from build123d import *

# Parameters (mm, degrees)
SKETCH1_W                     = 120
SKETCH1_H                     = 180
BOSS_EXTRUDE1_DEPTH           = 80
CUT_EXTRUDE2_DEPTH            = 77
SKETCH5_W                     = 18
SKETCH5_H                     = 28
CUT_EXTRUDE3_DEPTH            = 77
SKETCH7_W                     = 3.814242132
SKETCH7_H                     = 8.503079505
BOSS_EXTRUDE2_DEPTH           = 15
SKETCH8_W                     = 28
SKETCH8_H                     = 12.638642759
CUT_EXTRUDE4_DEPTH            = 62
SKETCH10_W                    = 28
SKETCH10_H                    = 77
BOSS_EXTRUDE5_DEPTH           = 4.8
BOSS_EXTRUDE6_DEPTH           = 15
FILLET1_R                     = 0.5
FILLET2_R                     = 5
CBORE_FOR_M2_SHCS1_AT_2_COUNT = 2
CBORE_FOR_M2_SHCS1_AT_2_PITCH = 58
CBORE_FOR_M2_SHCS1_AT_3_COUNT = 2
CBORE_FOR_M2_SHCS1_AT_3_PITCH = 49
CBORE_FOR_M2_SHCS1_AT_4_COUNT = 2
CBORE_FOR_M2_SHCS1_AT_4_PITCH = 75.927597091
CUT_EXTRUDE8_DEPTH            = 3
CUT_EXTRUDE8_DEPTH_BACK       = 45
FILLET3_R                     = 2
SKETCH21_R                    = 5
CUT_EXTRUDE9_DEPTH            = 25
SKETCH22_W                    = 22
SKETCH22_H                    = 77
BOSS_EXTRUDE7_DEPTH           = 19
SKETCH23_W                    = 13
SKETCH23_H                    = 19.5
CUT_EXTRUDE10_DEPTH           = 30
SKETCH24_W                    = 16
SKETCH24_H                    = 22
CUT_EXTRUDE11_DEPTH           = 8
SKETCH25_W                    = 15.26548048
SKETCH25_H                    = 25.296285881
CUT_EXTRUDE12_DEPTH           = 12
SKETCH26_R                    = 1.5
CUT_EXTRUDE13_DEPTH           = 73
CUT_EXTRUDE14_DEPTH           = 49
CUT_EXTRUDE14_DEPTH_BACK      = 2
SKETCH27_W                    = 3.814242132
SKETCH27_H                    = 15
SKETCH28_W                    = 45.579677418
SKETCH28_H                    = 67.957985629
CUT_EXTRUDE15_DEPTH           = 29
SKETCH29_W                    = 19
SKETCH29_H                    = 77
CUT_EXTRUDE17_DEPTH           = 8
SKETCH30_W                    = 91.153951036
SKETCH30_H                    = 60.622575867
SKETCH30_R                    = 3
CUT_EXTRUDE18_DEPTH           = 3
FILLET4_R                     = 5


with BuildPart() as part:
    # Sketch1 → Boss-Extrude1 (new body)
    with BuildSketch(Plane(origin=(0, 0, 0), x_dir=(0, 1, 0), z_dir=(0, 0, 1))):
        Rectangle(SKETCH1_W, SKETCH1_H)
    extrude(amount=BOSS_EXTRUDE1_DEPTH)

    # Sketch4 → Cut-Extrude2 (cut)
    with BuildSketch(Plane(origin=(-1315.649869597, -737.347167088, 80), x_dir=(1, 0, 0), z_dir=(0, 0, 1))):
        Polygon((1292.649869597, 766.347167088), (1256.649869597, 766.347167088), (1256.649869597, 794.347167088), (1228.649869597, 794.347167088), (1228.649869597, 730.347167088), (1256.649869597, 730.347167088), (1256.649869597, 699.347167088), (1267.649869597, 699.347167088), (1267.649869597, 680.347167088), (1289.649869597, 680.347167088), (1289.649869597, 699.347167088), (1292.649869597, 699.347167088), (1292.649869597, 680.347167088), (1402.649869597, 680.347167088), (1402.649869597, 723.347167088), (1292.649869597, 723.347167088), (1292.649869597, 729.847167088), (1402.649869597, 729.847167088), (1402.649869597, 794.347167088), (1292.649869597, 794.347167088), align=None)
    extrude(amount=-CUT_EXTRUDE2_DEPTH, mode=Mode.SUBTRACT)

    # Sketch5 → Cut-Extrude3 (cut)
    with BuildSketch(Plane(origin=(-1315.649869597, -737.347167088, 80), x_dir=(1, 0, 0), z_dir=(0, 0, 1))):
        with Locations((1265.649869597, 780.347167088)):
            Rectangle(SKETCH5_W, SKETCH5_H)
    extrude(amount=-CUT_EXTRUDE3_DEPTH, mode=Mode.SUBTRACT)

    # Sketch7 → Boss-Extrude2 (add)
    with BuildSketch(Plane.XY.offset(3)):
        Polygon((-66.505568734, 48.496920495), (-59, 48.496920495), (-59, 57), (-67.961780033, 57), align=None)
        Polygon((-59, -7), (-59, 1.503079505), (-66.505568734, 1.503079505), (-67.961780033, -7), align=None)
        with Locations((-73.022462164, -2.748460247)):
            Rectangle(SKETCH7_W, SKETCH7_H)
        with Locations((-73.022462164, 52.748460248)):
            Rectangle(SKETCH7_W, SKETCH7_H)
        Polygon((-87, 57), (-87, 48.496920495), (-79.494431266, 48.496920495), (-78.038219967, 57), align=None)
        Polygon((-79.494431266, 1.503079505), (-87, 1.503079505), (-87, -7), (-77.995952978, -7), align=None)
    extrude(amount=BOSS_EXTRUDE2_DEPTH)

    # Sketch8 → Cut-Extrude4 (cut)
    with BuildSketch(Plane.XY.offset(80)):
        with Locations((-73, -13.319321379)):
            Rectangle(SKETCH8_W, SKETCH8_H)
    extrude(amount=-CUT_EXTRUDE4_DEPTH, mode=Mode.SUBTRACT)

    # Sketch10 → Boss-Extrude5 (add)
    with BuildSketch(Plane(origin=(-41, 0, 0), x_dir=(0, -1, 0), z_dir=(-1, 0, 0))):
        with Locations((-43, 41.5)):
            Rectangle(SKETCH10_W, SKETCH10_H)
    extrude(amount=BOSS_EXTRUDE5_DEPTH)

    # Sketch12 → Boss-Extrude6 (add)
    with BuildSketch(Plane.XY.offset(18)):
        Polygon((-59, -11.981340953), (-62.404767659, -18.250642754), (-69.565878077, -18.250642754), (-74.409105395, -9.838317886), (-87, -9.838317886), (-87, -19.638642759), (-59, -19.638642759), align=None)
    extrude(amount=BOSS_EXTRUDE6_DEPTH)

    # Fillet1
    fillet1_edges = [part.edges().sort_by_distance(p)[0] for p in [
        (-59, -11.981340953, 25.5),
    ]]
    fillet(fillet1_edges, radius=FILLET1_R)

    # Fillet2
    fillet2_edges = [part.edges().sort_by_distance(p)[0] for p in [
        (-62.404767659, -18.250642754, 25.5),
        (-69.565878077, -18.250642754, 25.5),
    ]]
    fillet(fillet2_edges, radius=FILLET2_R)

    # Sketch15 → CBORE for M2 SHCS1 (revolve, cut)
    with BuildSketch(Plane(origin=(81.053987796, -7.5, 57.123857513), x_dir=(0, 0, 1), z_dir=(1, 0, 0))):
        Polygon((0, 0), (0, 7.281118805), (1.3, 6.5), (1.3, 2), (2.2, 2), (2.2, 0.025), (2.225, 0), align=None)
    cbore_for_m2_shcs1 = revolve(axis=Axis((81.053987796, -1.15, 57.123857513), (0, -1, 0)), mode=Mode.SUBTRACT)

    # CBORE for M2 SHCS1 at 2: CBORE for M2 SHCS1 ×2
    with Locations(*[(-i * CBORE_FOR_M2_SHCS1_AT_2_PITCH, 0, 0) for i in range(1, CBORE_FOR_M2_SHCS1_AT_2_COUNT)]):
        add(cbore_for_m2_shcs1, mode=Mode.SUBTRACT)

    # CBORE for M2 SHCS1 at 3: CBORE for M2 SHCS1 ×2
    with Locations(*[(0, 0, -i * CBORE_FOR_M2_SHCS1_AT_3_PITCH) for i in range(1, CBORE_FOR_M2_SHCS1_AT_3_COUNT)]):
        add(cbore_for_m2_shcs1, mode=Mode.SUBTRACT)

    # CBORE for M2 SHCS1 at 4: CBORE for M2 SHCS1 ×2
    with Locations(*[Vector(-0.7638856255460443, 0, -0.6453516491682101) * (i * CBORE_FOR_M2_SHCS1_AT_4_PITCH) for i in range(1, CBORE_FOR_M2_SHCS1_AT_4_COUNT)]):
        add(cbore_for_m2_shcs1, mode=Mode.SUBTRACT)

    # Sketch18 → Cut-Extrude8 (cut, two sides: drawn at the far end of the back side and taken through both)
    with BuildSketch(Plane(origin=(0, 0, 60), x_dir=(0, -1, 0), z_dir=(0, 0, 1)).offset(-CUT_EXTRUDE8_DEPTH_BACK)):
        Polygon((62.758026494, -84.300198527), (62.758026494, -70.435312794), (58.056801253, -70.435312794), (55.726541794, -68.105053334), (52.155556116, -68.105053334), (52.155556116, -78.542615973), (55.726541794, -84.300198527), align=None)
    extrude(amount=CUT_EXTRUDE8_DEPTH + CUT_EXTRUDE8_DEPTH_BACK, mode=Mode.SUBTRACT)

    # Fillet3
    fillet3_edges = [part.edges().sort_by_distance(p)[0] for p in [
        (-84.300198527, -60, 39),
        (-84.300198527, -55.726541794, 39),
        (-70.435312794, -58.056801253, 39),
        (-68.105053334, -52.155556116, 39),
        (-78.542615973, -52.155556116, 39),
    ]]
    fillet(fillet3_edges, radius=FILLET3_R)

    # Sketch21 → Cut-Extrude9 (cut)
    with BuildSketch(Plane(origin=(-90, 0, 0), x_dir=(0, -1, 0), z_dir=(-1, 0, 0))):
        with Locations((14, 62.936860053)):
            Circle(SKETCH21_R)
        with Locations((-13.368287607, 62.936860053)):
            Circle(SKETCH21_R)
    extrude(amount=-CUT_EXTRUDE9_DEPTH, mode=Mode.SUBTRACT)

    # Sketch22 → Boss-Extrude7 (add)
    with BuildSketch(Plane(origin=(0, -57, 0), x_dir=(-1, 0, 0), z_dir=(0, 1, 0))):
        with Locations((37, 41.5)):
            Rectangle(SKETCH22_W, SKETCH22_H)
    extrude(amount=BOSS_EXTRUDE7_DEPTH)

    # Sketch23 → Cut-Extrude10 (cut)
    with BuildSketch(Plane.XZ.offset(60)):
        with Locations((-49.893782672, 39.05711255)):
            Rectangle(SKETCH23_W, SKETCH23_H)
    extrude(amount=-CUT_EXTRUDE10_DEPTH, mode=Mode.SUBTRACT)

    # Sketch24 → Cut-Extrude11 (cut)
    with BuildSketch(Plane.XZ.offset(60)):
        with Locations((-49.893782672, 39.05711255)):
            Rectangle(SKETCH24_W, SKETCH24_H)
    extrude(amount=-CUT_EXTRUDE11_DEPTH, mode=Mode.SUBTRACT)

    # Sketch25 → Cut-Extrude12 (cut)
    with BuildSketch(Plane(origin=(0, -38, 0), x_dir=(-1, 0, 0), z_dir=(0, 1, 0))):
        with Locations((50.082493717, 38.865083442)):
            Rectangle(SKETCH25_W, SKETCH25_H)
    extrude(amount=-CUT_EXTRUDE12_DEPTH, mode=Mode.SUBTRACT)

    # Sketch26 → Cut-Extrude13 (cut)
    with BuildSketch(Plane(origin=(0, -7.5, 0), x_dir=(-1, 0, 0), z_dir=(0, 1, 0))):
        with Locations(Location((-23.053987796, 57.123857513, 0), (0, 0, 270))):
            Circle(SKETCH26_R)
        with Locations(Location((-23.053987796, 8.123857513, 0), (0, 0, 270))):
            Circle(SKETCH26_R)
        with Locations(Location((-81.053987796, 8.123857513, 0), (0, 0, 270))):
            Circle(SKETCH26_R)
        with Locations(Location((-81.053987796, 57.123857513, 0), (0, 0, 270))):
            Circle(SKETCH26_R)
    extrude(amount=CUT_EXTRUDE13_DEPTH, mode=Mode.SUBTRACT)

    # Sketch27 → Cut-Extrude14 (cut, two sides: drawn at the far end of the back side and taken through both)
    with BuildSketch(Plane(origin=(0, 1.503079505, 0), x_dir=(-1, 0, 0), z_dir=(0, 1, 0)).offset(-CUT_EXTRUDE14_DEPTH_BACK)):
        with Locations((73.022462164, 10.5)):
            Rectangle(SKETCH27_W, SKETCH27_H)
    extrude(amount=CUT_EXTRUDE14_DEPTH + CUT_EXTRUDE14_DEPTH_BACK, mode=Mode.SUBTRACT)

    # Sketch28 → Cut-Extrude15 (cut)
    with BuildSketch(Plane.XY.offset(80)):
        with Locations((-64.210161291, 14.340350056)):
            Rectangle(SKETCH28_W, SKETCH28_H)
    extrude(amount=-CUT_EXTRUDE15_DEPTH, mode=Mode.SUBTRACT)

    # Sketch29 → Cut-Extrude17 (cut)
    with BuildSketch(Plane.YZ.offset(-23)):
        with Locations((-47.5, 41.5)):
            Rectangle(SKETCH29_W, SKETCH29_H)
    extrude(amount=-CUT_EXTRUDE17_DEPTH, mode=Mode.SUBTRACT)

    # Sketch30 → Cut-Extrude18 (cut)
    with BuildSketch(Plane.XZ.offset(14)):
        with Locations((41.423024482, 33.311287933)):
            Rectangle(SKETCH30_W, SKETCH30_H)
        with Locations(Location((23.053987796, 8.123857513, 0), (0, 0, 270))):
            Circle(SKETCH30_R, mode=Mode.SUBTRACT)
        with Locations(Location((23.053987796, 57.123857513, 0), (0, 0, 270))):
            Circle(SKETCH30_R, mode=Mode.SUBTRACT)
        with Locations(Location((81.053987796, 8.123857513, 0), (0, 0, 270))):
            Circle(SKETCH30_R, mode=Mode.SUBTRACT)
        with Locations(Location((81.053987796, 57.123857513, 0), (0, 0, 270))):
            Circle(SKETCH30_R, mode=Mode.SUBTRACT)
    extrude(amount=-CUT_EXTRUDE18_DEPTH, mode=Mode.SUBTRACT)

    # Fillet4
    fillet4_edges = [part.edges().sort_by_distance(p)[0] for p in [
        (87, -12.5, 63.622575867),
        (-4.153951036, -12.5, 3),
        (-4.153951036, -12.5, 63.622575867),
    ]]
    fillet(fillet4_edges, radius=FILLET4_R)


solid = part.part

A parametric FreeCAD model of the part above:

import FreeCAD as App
import Part
import Sketcher

V = App.Vector
Q = App.Units.Quantity


def edges_at(feature, points):
    """Names of the edges that pass closest to the given points."""
    edges = feature.Shape.Edges
    near = lambda p: min(range(len(edges)), key=lambda i: edges[i].distToShape(Part.Vertex(*p))[0])
    return sorted({f"Edge{near(p) + 1}" for p in points})


def add_polygon(sketch, points):
    """Adds a closed chain of lines whose ends are joined by coincident constraints."""
    first, n = sketch.GeometryCount, len(points)
    for a, b in zip(points, points[1:] + points[:1]):
        sketch.addGeometry(Part.LineSegment(App.Vector(*a, 0), App.Vector(*b, 0)), False)
    for i in range(n):
        sketch.addConstraint(Sketcher.Constraint("Coincident", first + i, 2, first + (i + 1) % n, 1))

doc = App.newDocument("Part")
body = doc.addObject("PartDesign::Body", "Body")

# Sketch on XY plane
sketch1 = body.newObject("Sketcher::SketchObject", "Sketch")
sketch1.AttachmentSupport = (doc.getObject("XY_Plane"), [""])
sketch1.MapMode = "FlatFace"
add_polygon(sketch1, [(-90, -60), (90, -60), (90, 60), (-90, 60)])  # lines 0-3
sketch1.addConstraint([
    Sketcher.Constraint("Horizontal", 0),
    Sketcher.Constraint("Vertical", 1),
    Sketcher.Constraint("Horizontal", 2),
    Sketcher.Constraint("Vertical", 3),
    Sketcher.Constraint("Symmetric", 0, 2, 2, 2, -1, 1),
    Sketcher.Constraint("DistanceX", 0, 1, 0, 2, Q("180 mm")),
    Sketcher.Constraint("DistanceY", 1, 1, 1, 2, Q("120 mm")),
])
pad1 = body.newObject("PartDesign::Pad", "Pad")
pad1.Profile = sketch1
pad1.Length = 80

# Sketch on XY plane
sketch2 = body.newObject("Sketcher::SketchObject", "Sketch001")
sketch2.AttachmentSupport = (doc.getObject("XY_Plane"), [""])
sketch2.MapMode = "FlatFace"
sketch2.AttachmentOffset = App.Placement(V(0, 0, 80), App.Rotation())
add_polygon(sketch2, [(-23, 29), (-59, 29), (-59, 57), (-87, 57), (-87, -7), (-59, -7), (-59, -38), (-48, -38), (-48, -57), (-26, -57), (-26, -38), (-23, -38), (-23, -57), (87, -57), (87, -14), (-23, -14), (-23, -7.5), (87, -7.5), (87, 57), (-23, 57)])  # lines 0-19
sketch2.addConstraint([
    Sketcher.Constraint("Horizontal", 0),
    Sketcher.Constraint("Vertical", 1),
    Sketcher.Constraint("Horizontal", 2),
    Sketcher.Constraint("Vertical", 3),
    Sketcher.Constraint("Horizontal", 4),
    Sketcher.Constraint("Vertical", 5),
    Sketcher.Constraint("Horizontal", 6),
    Sketcher.Constraint("Vertical", 7),
    Sketcher.Constraint("Horizontal", 8),
    Sketcher.Constraint("Vertical", 9),
    Sketcher.Constraint("Horizontal", 10),
    Sketcher.Constraint("Vertical", 11),
    Sketcher.Constraint("Horizontal", 12),
    Sketcher.Constraint("Vertical", 13),
    Sketcher.Constraint("Horizontal", 14),
    Sketcher.Constraint("Vertical", 15),
    Sketcher.Constraint("Horizontal", 16),
    Sketcher.Constraint("Vertical", 17),
    Sketcher.Constraint("Horizontal", 18),
    Sketcher.Constraint("Vertical", 19),
    Sketcher.Constraint("Symmetric", 2, 2, 12, 2, -1, 1),
    Sketcher.Constraint("Symmetric", 2, 2, 17, 2, -2),
    Sketcher.Constraint("Horizontal", 6, 2, 9, 2),
    Sketcher.Constraint("Horizontal", 8, 2, 11, 2),
    Sketcher.Constraint("Vertical", 1, 2, 4, 2),
    Sketcher.Constraint("Vertical", 11, 2, 14, 2),
    Sketcher.Constraint("Vertical", 15, 2, 18, 2),
    Sketcher.Constraint("Equal", 4, 1),
    Sketcher.Constraint("DistanceX", 0, 2, 0, 1, Q("36 mm")),
    Sketcher.Constraint("DistanceX", 2, 2, 2, 1, Q("28 mm")),
    Sketcher.Constraint("DistanceX", 6, 1, 6, 2, Q("11 mm")),
    Sketcher.Constraint("DistanceX", 8, 1, 8, 2, Q("22 mm")),
    Sketcher.Constraint("DistanceX", 12, 1, 12, 2, Q("110 mm")),
    Sketcher.Constraint("DistanceY", 3, 2, 3, 1, Q("64 mm")),
    Sketcher.Constraint("DistanceY", 5, 2, 5, 1, Q("31 mm")),
    Sketcher.Constraint("DistanceY", 7, 2, 7, 1, Q("19 mm")),
    Sketcher.Constraint("DistanceY", 13, 1, 13, 2, Q("43 mm")),
    Sketcher.Constraint("DistanceY", 15, 1, 15, 2, Q("6.5 mm")),
])
pocket1 = body.newObject("PartDesign::Pocket", "Pocket")
pocket1.Profile = sketch2
pocket1.Length = 77

# Sketch on XY plane
sketch3 = body.newObject("Sketcher::SketchObject", "Sketch002")
sketch3.AttachmentSupport = (doc.getObject("XY_Plane"), [""])
sketch3.MapMode = "FlatFace"
sketch3.AttachmentOffset = App.Placement(V(0, 0, 80), App.Rotation())
add_polygon(sketch3, [(-59, 57), (-59, 29), (-41, 29), (-41, 57)])  # lines 0-3
sketch3.addConstraint([
    Sketcher.Constraint("Vertical", 0),
    Sketcher.Constraint("Horizontal", 1),
    Sketcher.Constraint("Vertical", 2),
    Sketcher.Constraint("Horizontal", 3),
    Sketcher.Constraint("DistanceX", 1, 1, 1, 2, Q("18 mm")),
    Sketcher.Constraint("DistanceY", 0, 2, 0, 1, Q("28 mm")),
    Sketcher.Constraint("DistanceX", 0, 2, -1, 1, Q("59 mm")),
    Sketcher.Constraint("DistanceY", -1, 1, 0, 2, Q("29 mm")),
])
pocket2 = body.newObject("PartDesign::Pocket", "Pocket001")
pocket2.Profile = sketch3
pocket2.Length = 77

# Sketch on XY plane
sketch4 = body.newObject("Sketcher::SketchObject", "Sketch003")
sketch4.AttachmentSupport = (doc.getObject("XY_Plane"), [""])
sketch4.MapMode = "FlatFace"
sketch4.AttachmentOffset = App.Placement(V(0, 0, 3), App.Rotation())
add_polygon(sketch4, [(-66.5, 48.5), (-59, 48.5), (-59, 57), (-68, 57)])  # lines 0-3
add_polygon(sketch4, [(-59, -7), (-59, 1.5), (-66.5, 1.5), (-68, -7)])  # lines 4-7
add_polygon(sketch4, [(-74.9, 1.5), (-74.9, -7), (-71.1, -7), (-71.1, 1.5)])  # lines 8-11
add_polygon(sketch4, [(-74.9, 57), (-74.9, 48.5), (-71.1, 48.5), (-71.1, 57)])  # lines 12-15
add_polygon(sketch4, [(-87, 57), (-87, 48.5), (-79.5, 48.5), (-78, 57)])  # lines 16-19
add_polygon(sketch4, [(-79.5, 1.5), (-87, 1.5), (-87, -7), (-78, -7)])  # lines 20-23
sketch4.addConstraint([
    Sketcher.Constraint("Horizontal", 0),
    Sketcher.Constraint("Vertical", 1),
    Sketcher.Constraint("Horizontal", 2),
    Sketcher.Constraint("Vertical", 4),
    Sketcher.Constraint("Horizontal", 5),
    Sketcher.Constraint("Horizontal", 7),
    Sketcher.Constraint("Vertical", 8),
    Sketcher.Constraint("Horizontal", 9),
    Sketcher.Constraint("Vertical", 10),
    Sketcher.Constraint("Horizontal", 11),
    Sketcher.Constraint("Vertical", 12),
    Sketcher.Constraint("Horizontal", 13),
    Sketcher.Constraint("Vertical", 14),
    Sketcher.Constraint("Horizontal", 15),
    Sketcher.Constraint("Vertical", 16),
    Sketcher.Constraint("Horizontal", 17),
    Sketcher.Constraint("Horizontal", 19),
    Sketcher.Constraint("Horizontal", 20),
    Sketcher.Constraint("Vertical", 21),
    Sketcher.Constraint("Horizontal", 22),
    Sketcher.Constraint("Parallel", 6, 18),
    Sketcher.Constraint("Horizontal", 7, 2, 8, 2),
    Sketcher.Constraint("Horizontal", 5, 2, 10, 2),
    Sketcher.Constraint("Horizontal", 3, 2, 12, 2),
    Sketcher.Constraint("Horizontal", 2, 2, 14, 2),
    Sketcher.Constraint("Horizontal", 13, 2, 16, 2),
    Sketcher.Constraint("Horizontal", 15, 2, 18, 2),
    Sketcher.Constraint("Horizontal", 11, 2, 20, 2),
    Sketcher.Constraint("Horizontal", 9, 2, 21, 2),
    Sketcher.Constraint("Vertical", 1, 2, 4, 2),
    Sketcher.Constraint("Vertical", 3, 2, 5, 2),
    Sketcher.Constraint("Vertical", 2, 2, 6, 2),
    Sketcher.Constraint("Vertical", 11, 2, 12, 2),
    Sketcher.Constraint("Vertical", 10, 2, 13, 2),
    Sketcher.Constraint("Vertical", 19, 2, 20, 2),
    Sketcher.Constraint("Vertical", 17, 2, 23, 2),
    Sketcher.Constraint("Equal", 5, 17),
    Sketcher.Constraint("Equal", 7, 19),
    Sketcher.Constraint("DistanceX", 0, 2, -1, 1, Q("59 mm")),
    Sketcher.Constraint("DistanceY", -1, 1, 1, 2, Q("57 mm")),
    Sketcher.Constraint("DistanceY", 6, 2, -1, 1, Q("7 mm")),
    Sketcher.Constraint("DistanceX", 16, 2, -1, 1, Q("87 mm")),
    Sketcher.Constraint("DistanceX", 0, 1, 0, 2, Q("7.505569 mm")),
    Sketcher.Constraint("DistanceX", 2, 2, 2, 1, Q("8.96178 mm")),
    Sketcher.Constraint("DistanceY", 1, 1, 1, 2, Q("8.50308 mm")),
    Sketcher.Constraint("DistanceX", 9, 1, 9, 2, Q("3.814242 mm")),
    Sketcher.Constraint("DistanceX", 22, 1, 22, 2, Q("9.004047 mm")),
    Sketcher.Constraint("DistanceX", 9, 2, -1, 1, Q("71.115341 mm")),
])
pad2 = body.newObject("PartDesign::Pad", "Pad001")
pad2.Profile = sketch4
pad2.Length = 15

# Sketch on XY plane
sketch5 = body.newObject("Sketcher::SketchObject", "Sketch004")
sketch5.AttachmentSupport = (doc.getObject("XY_Plane"), [""])
sketch5.MapMode = "FlatFace"
sketch5.AttachmentOffset = App.Placement(V(0, 0, 80), App.Rotation())
add_polygon(sketch5, [(-87, -7), (-87, -20), (-59, -20), (-59, -7)])  # lines 0-3
sketch5.addConstraint([
    Sketcher.Constraint("Vertical", 0),
    Sketcher.Constraint("Horizontal", 1),
    Sketcher.Constraint("Vertical", 2),
    Sketcher.Constraint("Horizontal", 3),
    Sketcher.Constraint("DistanceX", 1, 1, 1, 2, Q("28 mm")),
    Sketcher.Constraint("DistanceX", 0, 2, -1, 1, Q("87 mm")),
    Sketcher.Constraint("DistanceY", 2, 2, -1, 1, Q("7 mm")),
    Sketcher.Constraint("DistanceY", 0, 2, 0, 1, Q("12.638643 mm")),
])
pocket3 = body.newObject("PartDesign::Pocket", "Pocket002")
pocket3.Profile = sketch5
pocket3.Length = 62

# Sketch on YZ plane
sketch6 = body.newObject("Sketcher::SketchObject", "Sketch005")
sketch6.AttachmentSupport = (doc.getObject("YZ_Plane"), [""])
sketch6.MapMode = "FlatFace"
sketch6.AttachmentOffset = App.Placement(V(0, 0, -41), App.Rotation())
add_polygon(sketch6, [(57, 80), (57, 3), (29, 3), (29, 80)])  # lines 0-3
sketch6.addConstraint([
    Sketcher.Constraint("Vertical", 0),
    Sketcher.Constraint("Horizontal", 1),
    Sketcher.Constraint("Vertical", 2),
    Sketcher.Constraint("Horizontal", 3),
    Sketcher.Constraint("DistanceX", 1, 2, 1, 1, Q("28 mm")),
    Sketcher.Constraint("DistanceY", 0, 2, 0, 1, Q("77 mm")),
    Sketcher.Constraint("DistanceX", -1, 1, 0, 2, Q("57 mm")),
    Sketcher.Constraint("DistanceY", -1, 1, 0, 2, Q("3 mm")),
])
pad3 = body.newObject("PartDesign::Pad", "Pad002")
pad3.Profile = sketch6
pad3.Length = 4.8
pad3.Reversed = True

# Sketch on XY plane
sketch7 = body.newObject("Sketcher::SketchObject", "Sketch006")
sketch7.AttachmentSupport = (doc.getObject("XY_Plane"), [""])
sketch7.MapMode = "FlatFace"
sketch7.AttachmentOffset = App.Placement(V(0, 0, 18), App.Rotation())
add_polygon(sketch7, [(-59, -12), (-62, -18), (-70, -18), (-74, -10), (-87, -10), (-87, -20), (-59, -20)])  # lines 0-6
sketch7.addConstraint([
    Sketcher.Constraint("Horizontal", 1),
    Sketcher.Constraint("Horizontal", 3),
    Sketcher.Constraint("Vertical", 4),
    Sketcher.Constraint("Horizontal", 5),
    Sketcher.Constraint("Vertical", 6),
    Sketcher.Constraint("DistanceX", 5, 1, 5, 2, Q("28 mm")),
    Sketcher.Constraint("DistanceX", 3, 2, -1, 1, Q("87 mm")),
    Sketcher.Constraint("DistanceY", 6, 1, 6, 2, Q("7.657302 mm")),
    Sketcher.Constraint("DistanceY", 4, 2, 1, 2, Q("1.388 mm")),
    Sketcher.Constraint("DistanceX", 1, 2, 1, 1, Q("7.16111 mm")),
    Sketcher.Constraint("DistanceX", 3, 2, 3, 1, Q("12.590895 mm")),
    Sketcher.Constraint("DistanceY", 4, 2, 4, 1, Q("9.800325 mm")),
    Sketcher.Constraint("DistanceX", 1, 2, -1, 1, Q("69.565878 mm")),
    Sketcher.Constraint("DistanceY", 6, 2, -1, 1, Q("11.981341 mm")),
])
pad4 = body.newObject("PartDesign::Pad", "Pad003")
pad4.Profile = sketch7
pad4.Length = 15
doc.recompute()

fillet = body.newObject("PartDesign::Fillet", "Fillet")
fillet.Base = (pad4, edges_at(pad4, [(-59, -11.981, 25.5)]))
fillet.Radius = 0.5
doc.recompute()

fillet2 = body.newObject("PartDesign::Fillet", "Fillet001")
fillet2.Base = (fillet, edges_at(fillet, [(-62.405, -18.251, 25.5), (-69.566, -18.251, 25.5)]))
fillet2.Radius = 5

# Sketch on YZ plane
sketch8 = body.newObject("Sketcher::SketchObject", "Sketch007")
sketch8.AttachmentSupport = (doc.getObject("YZ_Plane"), [""])
sketch8.MapMode = "FlatFace"
sketch8.AttachmentOffset = App.Placement(V(0, 0, 81.053988), App.Rotation())
add_polygon(sketch8, [(-14.781, 57.124), (-7.5, 57.124), (-7.5, 59.349), (-7.525, 59.324), (-9.5, 59.324), (-9.5, 58.424), (-14, 58.424)])  # lines 0-6
sketch8.addGeometry(Part.LineSegment(V(-7.5, 57.124, 0), V(-14.781, 57.124, 0)), True)  # axis
sketch8.addConstraint([
    Sketcher.Constraint("Horizontal", 0),
    Sketcher.Constraint("Vertical", 1),
    Sketcher.Constraint("Horizontal", 3),
    Sketcher.Constraint("Vertical", 4),
    Sketcher.Constraint("Horizontal", 5),
    Sketcher.Constraint("Horizontal", 7),
    Sketcher.Constraint("Coincident", 7, 1, 0, 2),
    Sketcher.Constraint("Equal", 0, 7),
    Sketcher.Constraint("Angle", 2, Q("-135 deg")),
    Sketcher.Constraint("Angle", 6, Q("-121 deg")),
    Sketcher.Constraint("DistanceX", 5, 2, 5, 1, Q("4.5 mm")),
    Sketcher.Constraint("DistanceY", 4, 2, 4, 1, Q("0.9 mm")),
    Sketcher.Constraint("DistanceX", 5, 2, -1, 1, Q("14 mm")),
    Sketcher.Constraint("DistanceX", 3, 2, 1, 2, Q("2 mm")),
    Sketcher.Constraint("DistanceY", 0, 2, 2, 2, Q("2.2 mm")),
    Sketcher.Constraint("DistanceX", 3, 2, 3, 1, Q("1.975 mm")),
    Sketcher.Constraint("DistanceY", -1, 1, 0, 2, Q("57.123858 mm")),
])
groove = body.newObject("PartDesign::Groove", "Groove")
groove.Profile = sketch8
groove.ReferenceAxis = (sketch8, ["Axis0"])
groove.Angle = 360
doc.recompute()

linearpattern = body.newObject("PartDesign::LinearPattern", "LinearPattern")
linearpattern.Originals = [groove]
linearpattern.Direction = (doc.getObject("X_Axis"), [""])
linearpattern.Mode = "offset"
linearpattern.Offset = 58
linearpattern.Occurrences = 2
linearpattern.Reversed = True
body.Tip = linearpattern
doc.recompute()

linearpattern2 = body.newObject("PartDesign::LinearPattern", "LinearPattern001")
linearpattern2.Originals = [groove]
linearpattern2.Direction = (doc.getObject("Z_Axis"), [""])
linearpattern2.Mode = "offset"
linearpattern2.Offset = 49
linearpattern2.Occurrences = 2
linearpattern2.Reversed = True
body.Tip = linearpattern2
doc.recompute()

datumline = body.newObject("PartDesign::Line", "DatumLine")
datumline.Placement = App.Placement(V(0, 0, 0), App.Rotation(V(0, 0, 1), V(-0.763885626, 0, -0.645351649)))
linearpattern3 = body.newObject("PartDesign::LinearPattern", "LinearPattern002")
linearpattern3.Originals = [groove]
linearpattern3.Direction = (datumline, [""])
linearpattern3.Mode = "offset"
linearpattern3.Offset = 75.927597
linearpattern3.Occurrences = 2
body.Tip = linearpattern3

# Sketch on XY plane
sketch9 = body.newObject("Sketcher::SketchObject", "Sketch008")
sketch9.AttachmentSupport = (doc.getObject("XY_Plane"), [""])
sketch9.MapMode = "FlatFace"
sketch9.AttachmentOffset = App.Placement(V(0, 0, 60), App.Rotation())
add_polygon(sketch9, [(-84.3, -62.8), (-70.4, -62.8), (-70.4, -58.1), (-68.1, -55.7), (-68.1, -52.2), (-78.5, -52.2), (-84.3, -55.7)])  # lines 0-6
sketch9.addConstraint([
    Sketcher.Constraint("Horizontal", 0),
    Sketcher.Constraint("Vertical", 1),
    Sketcher.Constraint("Vertical", 3),
    Sketcher.Constraint("Horizontal", 4),
    Sketcher.Constraint("Vertical", 6),
    Sketcher.Constraint("Horizontal", 2, 2, 5, 2),
    Sketcher.Constraint("Angle", 2, Q("45 deg")),
    Sketcher.Constraint("DistanceY", 1, 2, -1, 1, Q("58.056801 mm")),
    Sketcher.Constraint("DistanceX", 5, 2, -1, 1, Q("84.300199 mm")),
    Sketcher.Constraint("Distance", 5, Q("6.775079 mm")),
    Sketcher.Constraint("DistanceX", 0, 1, 0, 2, Q("13.864886 mm")),
    Sketcher.Constraint("DistanceX", 4, 2, 4, 1, Q("10.437563 mm")),
    Sketcher.Constraint("DistanceY", 1, 1, 1, 2, Q("4.701225 mm")),
    Sketcher.Constraint("DistanceY", 3, 1, 3, 2, Q("3.570986 mm")),
])
pocket4 = body.newObject("PartDesign::Pocket", "Pocket003")
pocket4.Profile = sketch9
pocket4.Type = "TwoLengths"
pocket4.Length = 3
pocket4.Length2 = 45
pocket4.Reversed = True
doc.recompute()

fillet3 = body.newObject("PartDesign::Fillet", "Fillet002")
fillet3.Base = (pocket4, edges_at(pocket4, [
    (-84.3, -60, 39),
    (-84.3, -55.727, 39),
    (-70.435, -58.057, 39),
    (-68.105, -52.156, 39),
    (-78.543, -52.156, 39),
]))
fillet3.Radius = 2

# Sketch on YZ plane
sketch10 = body.newObject("Sketcher::SketchObject", "Sketch009")
sketch10.AttachmentSupport = (doc.getObject("YZ_Plane"), [""])
sketch10.MapMode = "FlatFace"
sketch10.AttachmentOffset = App.Placement(V(0, 0, -90), App.Rotation())
sketch10.addGeometry([
    Part.Circle(V(-14, 63, 0), V(0, 0, 1), 5),
    Part.Circle(V(13, 63, 0), V(0, 0, 1), 5),
], False)
sketch10.addConstraint([
    Sketcher.Constraint("Equal", 0, 1),
    Sketcher.Constraint("Horizontal", 0, 3, 1, 3),
    Sketcher.Constraint("Diameter", 0, Q("10 mm")),
    Sketcher.Constraint("DistanceX", 0, 3, -1, 1, Q("14 mm")),
    Sketcher.Constraint("DistanceY", -1, 1, 0, 3, Q("62.93686 mm")),
    Sketcher.Constraint("DistanceX", -1, 1, 1, 3, Q("13.368288 mm")),
])
pocket5 = body.newObject("PartDesign::Pocket", "Pocket004")
pocket5.Profile = sketch10
pocket5.Length = 25
pocket5.Reversed = True

# Sketch on XZ plane
sketch11 = body.newObject("Sketcher::SketchObject", "Sketch010")
sketch11.AttachmentSupport = (doc.getObject("XZ_Plane"), [""])
sketch11.MapMode = "FlatFace"
sketch11.AttachmentOffset = App.Placement(V(0, 0, 57), App.Rotation())
add_polygon(sketch11, [(-26, 80), (-26, 3), (-48, 3), (-48, 80)])  # lines 0-3
sketch11.addConstraint([
    Sketcher.Constraint("Vertical", 0),
    Sketcher.Constraint("Horizontal", 1),
    Sketcher.Constraint("Vertical", 2),
    Sketcher.Constraint("Horizontal", 3),
    Sketcher.Constraint("DistanceX", 1, 2, 1, 1, Q("22 mm")),
    Sketcher.Constraint("DistanceY", 0, 2, 0, 1, Q("77 mm")),
    Sketcher.Constraint("DistanceX", 0, 2, -1, 1, Q("26 mm")),
    Sketcher.Constraint("DistanceY", -1, 1, 0, 2, Q("3 mm")),
])
pad5 = body.newObject("PartDesign::Pad", "Pad004")
pad5.Profile = sketch11
pad5.Length = 19
pad5.Reversed = True

# Sketch on XZ plane
sketch12 = body.newObject("Sketcher::SketchObject", "Sketch011")
sketch12.AttachmentSupport = (doc.getObject("XZ_Plane"), [""])
sketch12.MapMode = "FlatFace"
sketch12.AttachmentOffset = App.Placement(V(0, 0, 60), App.Rotation())
add_polygon(sketch12, [(-56, 49), (-56, 29), (-43, 29), (-43, 49)])  # lines 0-3
sketch12.addConstraint([
    Sketcher.Constraint("Vertical", 0),
    Sketcher.Constraint("Horizontal", 1),
    Sketcher.Constraint("Vertical", 2),
    Sketcher.Constraint("Horizontal", 3),
    Sketcher.Constraint("DistanceX", 1, 1, 1, 2, Q("13 mm")),
    Sketcher.Constraint("DistanceY", 0, 2, 0, 1, Q("19.5 mm")),
    Sketcher.Constraint("DistanceX", 0, 2, -1, 1, Q("56.393783 mm")),
    Sketcher.Constraint("DistanceY", -1, 1, 0, 2, Q("29.307113 mm")),
])
pocket6 = body.newObject("PartDesign::Pocket", "Pocket005")
pocket6.Profile = sketch12
pocket6.Length = 30

# Sketch on XZ plane
sketch13 = body.newObject("Sketcher::SketchObject", "Sketch012")
sketch13.AttachmentSupport = (doc.getObject("XZ_Plane"), [""])
sketch13.MapMode = "FlatFace"
sketch13.AttachmentOffset = App.Placement(V(0, 0, 60), App.Rotation())
add_polygon(sketch13, [(-58, 50), (-58, 28), (-42, 28), (-42, 50)])  # lines 0-3
sketch13.addConstraint([
    Sketcher.Constraint("Vertical", 0),
    Sketcher.Constraint("Horizontal", 1),
    Sketcher.Constraint("Vertical", 2),
    Sketcher.Constraint("Horizontal", 3),
    Sketcher.Constraint("DistanceX", 1, 1, 1, 2, Q("16 mm")),
    Sketcher.Constraint("DistanceY", 0, 2, 0, 1, Q("22 mm")),
    Sketcher.Constraint("DistanceX", 0, 2, -1, 1, Q("57.893783 mm")),
    Sketcher.Constraint("DistanceY", -1, 1, 0, 2, Q("28.057113 mm")),
])
pocket7 = body.newObject("PartDesign::Pocket", "Pocket006")
pocket7.Profile = sketch13
pocket7.Length = 8

# Sketch on XZ plane
sketch14 = body.newObject("Sketcher::SketchObject", "Sketch013")
sketch14.AttachmentSupport = (doc.getObject("XZ_Plane"), [""])
sketch14.MapMode = "FlatFace"
sketch14.AttachmentOffset = App.Placement(V(0, 0, 38), App.Rotation())
add_polygon(sketch14, [(-42, 52), (-42, 26), (-58, 26), (-58, 52)])  # lines 0-3
sketch14.addConstraint([
    Sketcher.Constraint("Vertical", 0),
    Sketcher.Constraint("Horizontal", 1),
    Sketcher.Constraint("Vertical", 2),
    Sketcher.Constraint("Horizontal", 3),
    Sketcher.Constraint("DistanceX", 1, 2, 1, 1, Q("15.26548 mm")),
    Sketcher.Constraint("DistanceY", 0, 2, 0, 1, Q("25.296286 mm")),
    Sketcher.Constraint("DistanceY", -1, 1, 0, 2, Q("26.216941 mm")),
    Sketcher.Constraint("DistanceX", 0, 2, -1, 1, Q("42.449753 mm")),
])
pocket8 = body.newObject("PartDesign::Pocket", "Pocket007")
pocket8.Profile = sketch14
pocket8.Length = 12
pocket8.Reversed = True

# Sketch on XZ plane
sketch15 = body.newObject("Sketcher::SketchObject", "Sketch014")
sketch15.AttachmentSupport = (doc.getObject("XZ_Plane"), [""])
sketch15.MapMode = "FlatFace"
sketch15.AttachmentOffset = App.Placement(V(0, 0, 7.5), App.Rotation())
sketch15.addGeometry([
    Part.Circle(V(23.1, 57.1, 0), V(0, 0, 1), 1.5),
    Part.Circle(V(23.1, 8.1, 0), V(0, 0, 1), 1.5),
    Part.Circle(V(81.1, 8.1, 0), V(0, 0, 1), 1.5),
    Part.Circle(V(81.1, 57.1, 0), V(0, 0, 1), 1.5),
], False)
sketch15.addConstraint([
    Sketcher.Constraint("Equal", 0, 1),
    Sketcher.Constraint("Equal", 1, 2),
    Sketcher.Constraint("Equal", 2, 3),
    Sketcher.Constraint("Horizontal", 1, 3, 2, 3),
    Sketcher.Constraint("Horizontal", 0, 3, 3, 3),
    Sketcher.Constraint("Vertical", 0, 3, 1, 3),
    Sketcher.Constraint("Vertical", 2, 3, 3, 3),
    Sketcher.Constraint("Diameter", 0, Q("3 mm")),
    Sketcher.Constraint("DistanceY", 1, 3, 0, 3, Q("49 mm")),
    Sketcher.Constraint("DistanceX", 1, 3, 2, 3, Q("58 mm")),
    Sketcher.Constraint("DistanceX", -1, 1, 0, 3, Q("23.053988 mm")),
    Sketcher.Constraint("DistanceY", -1, 1, 0, 3, Q("57.123858 mm")),
])
pocket9 = body.newObject("PartDesign::Pocket", "Pocket008")
pocket9.Profile = sketch15
pocket9.Length = 73

# Sketch on XZ plane
sketch16 = body.newObject("Sketcher::SketchObject", "Sketch015")
sketch16.AttachmentSupport = (doc.getObject("XZ_Plane"), [""])
sketch16.MapMode = "FlatFace"
sketch16.AttachmentOffset = App.Placement(V(0, 0, -1.50308), App.Rotation())
add_polygon(sketch16, [(-71.1, 18), (-71.1, 3), (-74.9, 3), (-74.9, 18)])  # lines 0-3
sketch16.addConstraint([
    Sketcher.Constraint("Vertical", 0),
    Sketcher.Constraint("Horizontal", 1),
    Sketcher.Constraint("Vertical", 2),
    Sketcher.Constraint("Horizontal", 3),
    Sketcher.Constraint("DistanceY", 0, 2, 0, 1, Q("15 mm")),
    Sketcher.Constraint("DistanceY", -1, 1, 0, 2, Q("3 mm")),
    Sketcher.Constraint("DistanceX", 1, 2, 1, 1, Q("3.814242 mm")),
    Sketcher.Constraint("DistanceX", 0, 2, -1, 1, Q("71.115341 mm")),
])
pocket10 = body.newObject("PartDesign::Pocket", "Pocket009")
pocket10.Profile = sketch16
pocket10.Type = "TwoLengths"
pocket10.Length = 49
pocket10.Length2 = 2

# Sketch on XY plane
sketch17 = body.newObject("Sketcher::SketchObject", "Sketch016")
sketch17.AttachmentSupport = (doc.getObject("XY_Plane"), [""])
sketch17.MapMode = "FlatFace"
sketch17.AttachmentOffset = App.Placement(V(0, 0, 80), App.Rotation())
add_polygon(sketch17, [(-87, 48), (-87, -20), (-41, -20), (-41, 48)])  # lines 0-3
sketch17.addConstraint([
    Sketcher.Constraint("Vertical", 0),
    Sketcher.Constraint("Horizontal", 1),
    Sketcher.Constraint("Vertical", 2),
    Sketcher.Constraint("Horizontal", 3),
    Sketcher.Constraint("DistanceX", 0, 2, -1, 1, Q("87 mm")),
    Sketcher.Constraint("DistanceX", 1, 1, 1, 2, Q("45.579677 mm")),
    Sketcher.Constraint("DistanceY", 0, 2, 0, 1, Q("67.957986 mm")),
    Sketcher.Constraint("DistanceY", 0, 2, -1, 1, Q("19.638643 mm")),
])
pocket11 = body.newObject("PartDesign::Pocket", "Pocket010")
pocket11.Profile = sketch17
pocket11.Length = 29

# Sketch on YZ plane
sketch18 = body.newObject("Sketcher::SketchObject", "Sketch017")
sketch18.AttachmentSupport = (doc.getObject("YZ_Plane"), [""])
sketch18.MapMode = "FlatFace"
sketch18.AttachmentOffset = App.Placement(V(0, 0, -23), App.Rotation())
add_polygon(sketch18, [(-57, 80), (-57, 3), (-38, 3), (-38, 80)])  # lines 0-3
sketch18.addConstraint([
    Sketcher.Constraint("Vertical", 0),
    Sketcher.Constraint("Horizontal", 1),
    Sketcher.Constraint("Vertical", 2),
    Sketcher.Constraint("Horizontal", 3),
    Sketcher.Constraint("DistanceX", 1, 1, 1, 2, Q("19 mm")),
    Sketcher.Constraint("DistanceY", 0, 2, 0, 1, Q("77 mm")),
    Sketcher.Constraint("DistanceX", 0, 2, -1, 1, Q("57 mm")),
    Sketcher.Constraint("DistanceY", -1, 1, 0, 2, Q("3 mm")),
])
pocket12 = body.newObject("PartDesign::Pocket", "Pocket011")
pocket12.Profile = sketch18
pocket12.Length = 8

# Sketch on XZ plane
sketch19 = body.newObject("Sketcher::SketchObject", "Sketch018")
sketch19.AttachmentSupport = (doc.getObject("XZ_Plane"), [""])
sketch19.MapMode = "FlatFace"
sketch19.AttachmentOffset = App.Placement(V(0, 0, 14), App.Rotation())
add_polygon(sketch19, [(-4.2, 63.6), (-4.2, 3), (87, 3), (87, 63.6)])  # lines 0-3
sketch19.addGeometry(Part.Circle(V(23.1, 8.1, 0), V(0, 0, 1), 3), False)  # 4
sketch19.addGeometry(Part.Circle(V(81.1, 8.1, 0), V(0, 0, 1), 3), False)  # 5
sketch19.addGeometry(Part.Circle(V(23.1, 57.1, 0), V(0, 0, 1), 3), False)  # 6
sketch19.addGeometry(Part.Circle(V(81.1, 57.1, 0), V(0, 0, 1), 3), False)  # 7
sketch19.addConstraint([
    Sketcher.Constraint("Vertical", 0),
    Sketcher.Constraint("Horizontal", 1),
    Sketcher.Constraint("Vertical", 2),
    Sketcher.Constraint("Horizontal", 3),
    Sketcher.Constraint("Equal", 4, 5),
    Sketcher.Constraint("Equal", 5, 6),
    Sketcher.Constraint("Equal", 6, 7),
    Sketcher.Constraint("Horizontal", 4, 3, 5, 3),
    Sketcher.Constraint("Horizontal", 6, 3, 7, 3),
    Sketcher.Constraint("Vertical", 4, 3, 6, 3),
    Sketcher.Constraint("Vertical", 5, 3, 7, 3),
    Sketcher.Constraint("Diameter", 4, Q("6 mm")),
    Sketcher.Constraint("DistanceY", -1, 1, 0, 2, Q("3 mm")),
    Sketcher.Constraint("DistanceX", -1, 1, 1, 2, Q("87 mm")),
    Sketcher.Constraint("DistanceX", 4, 3, 5, 3, Q("58 mm")),
    Sketcher.Constraint("DistanceY", 4, 3, 6, 3, Q("49 mm")),
    Sketcher.Constraint("DistanceX", 1, 1, 1, 2, Q("91.153951 mm")),
    Sketcher.Constraint("DistanceY", 0, 2, 0, 1, Q("60.622576 mm")),
    Sketcher.Constraint("DistanceX", 0, 2, 4, 3, Q("27.207939 mm")),
    Sketcher.Constraint("DistanceY", 7, 3, 2, 2, Q("6.498718 mm")),
])
pocket13 = body.newObject("PartDesign::Pocket", "Pocket012")
pocket13.Profile = sketch19
pocket13.Length = 3
doc.recompute()

fillet4 = body.newObject("PartDesign::Fillet", "Fillet003")
fillet4.Base = (pocket13, edges_at(pocket13, [(87, -12.5, 63.623), (-4.154, -12.5, 3), (-4.154, -12.5, 63.623)]))
fillet4.Radius = 5

doc.recompute()
